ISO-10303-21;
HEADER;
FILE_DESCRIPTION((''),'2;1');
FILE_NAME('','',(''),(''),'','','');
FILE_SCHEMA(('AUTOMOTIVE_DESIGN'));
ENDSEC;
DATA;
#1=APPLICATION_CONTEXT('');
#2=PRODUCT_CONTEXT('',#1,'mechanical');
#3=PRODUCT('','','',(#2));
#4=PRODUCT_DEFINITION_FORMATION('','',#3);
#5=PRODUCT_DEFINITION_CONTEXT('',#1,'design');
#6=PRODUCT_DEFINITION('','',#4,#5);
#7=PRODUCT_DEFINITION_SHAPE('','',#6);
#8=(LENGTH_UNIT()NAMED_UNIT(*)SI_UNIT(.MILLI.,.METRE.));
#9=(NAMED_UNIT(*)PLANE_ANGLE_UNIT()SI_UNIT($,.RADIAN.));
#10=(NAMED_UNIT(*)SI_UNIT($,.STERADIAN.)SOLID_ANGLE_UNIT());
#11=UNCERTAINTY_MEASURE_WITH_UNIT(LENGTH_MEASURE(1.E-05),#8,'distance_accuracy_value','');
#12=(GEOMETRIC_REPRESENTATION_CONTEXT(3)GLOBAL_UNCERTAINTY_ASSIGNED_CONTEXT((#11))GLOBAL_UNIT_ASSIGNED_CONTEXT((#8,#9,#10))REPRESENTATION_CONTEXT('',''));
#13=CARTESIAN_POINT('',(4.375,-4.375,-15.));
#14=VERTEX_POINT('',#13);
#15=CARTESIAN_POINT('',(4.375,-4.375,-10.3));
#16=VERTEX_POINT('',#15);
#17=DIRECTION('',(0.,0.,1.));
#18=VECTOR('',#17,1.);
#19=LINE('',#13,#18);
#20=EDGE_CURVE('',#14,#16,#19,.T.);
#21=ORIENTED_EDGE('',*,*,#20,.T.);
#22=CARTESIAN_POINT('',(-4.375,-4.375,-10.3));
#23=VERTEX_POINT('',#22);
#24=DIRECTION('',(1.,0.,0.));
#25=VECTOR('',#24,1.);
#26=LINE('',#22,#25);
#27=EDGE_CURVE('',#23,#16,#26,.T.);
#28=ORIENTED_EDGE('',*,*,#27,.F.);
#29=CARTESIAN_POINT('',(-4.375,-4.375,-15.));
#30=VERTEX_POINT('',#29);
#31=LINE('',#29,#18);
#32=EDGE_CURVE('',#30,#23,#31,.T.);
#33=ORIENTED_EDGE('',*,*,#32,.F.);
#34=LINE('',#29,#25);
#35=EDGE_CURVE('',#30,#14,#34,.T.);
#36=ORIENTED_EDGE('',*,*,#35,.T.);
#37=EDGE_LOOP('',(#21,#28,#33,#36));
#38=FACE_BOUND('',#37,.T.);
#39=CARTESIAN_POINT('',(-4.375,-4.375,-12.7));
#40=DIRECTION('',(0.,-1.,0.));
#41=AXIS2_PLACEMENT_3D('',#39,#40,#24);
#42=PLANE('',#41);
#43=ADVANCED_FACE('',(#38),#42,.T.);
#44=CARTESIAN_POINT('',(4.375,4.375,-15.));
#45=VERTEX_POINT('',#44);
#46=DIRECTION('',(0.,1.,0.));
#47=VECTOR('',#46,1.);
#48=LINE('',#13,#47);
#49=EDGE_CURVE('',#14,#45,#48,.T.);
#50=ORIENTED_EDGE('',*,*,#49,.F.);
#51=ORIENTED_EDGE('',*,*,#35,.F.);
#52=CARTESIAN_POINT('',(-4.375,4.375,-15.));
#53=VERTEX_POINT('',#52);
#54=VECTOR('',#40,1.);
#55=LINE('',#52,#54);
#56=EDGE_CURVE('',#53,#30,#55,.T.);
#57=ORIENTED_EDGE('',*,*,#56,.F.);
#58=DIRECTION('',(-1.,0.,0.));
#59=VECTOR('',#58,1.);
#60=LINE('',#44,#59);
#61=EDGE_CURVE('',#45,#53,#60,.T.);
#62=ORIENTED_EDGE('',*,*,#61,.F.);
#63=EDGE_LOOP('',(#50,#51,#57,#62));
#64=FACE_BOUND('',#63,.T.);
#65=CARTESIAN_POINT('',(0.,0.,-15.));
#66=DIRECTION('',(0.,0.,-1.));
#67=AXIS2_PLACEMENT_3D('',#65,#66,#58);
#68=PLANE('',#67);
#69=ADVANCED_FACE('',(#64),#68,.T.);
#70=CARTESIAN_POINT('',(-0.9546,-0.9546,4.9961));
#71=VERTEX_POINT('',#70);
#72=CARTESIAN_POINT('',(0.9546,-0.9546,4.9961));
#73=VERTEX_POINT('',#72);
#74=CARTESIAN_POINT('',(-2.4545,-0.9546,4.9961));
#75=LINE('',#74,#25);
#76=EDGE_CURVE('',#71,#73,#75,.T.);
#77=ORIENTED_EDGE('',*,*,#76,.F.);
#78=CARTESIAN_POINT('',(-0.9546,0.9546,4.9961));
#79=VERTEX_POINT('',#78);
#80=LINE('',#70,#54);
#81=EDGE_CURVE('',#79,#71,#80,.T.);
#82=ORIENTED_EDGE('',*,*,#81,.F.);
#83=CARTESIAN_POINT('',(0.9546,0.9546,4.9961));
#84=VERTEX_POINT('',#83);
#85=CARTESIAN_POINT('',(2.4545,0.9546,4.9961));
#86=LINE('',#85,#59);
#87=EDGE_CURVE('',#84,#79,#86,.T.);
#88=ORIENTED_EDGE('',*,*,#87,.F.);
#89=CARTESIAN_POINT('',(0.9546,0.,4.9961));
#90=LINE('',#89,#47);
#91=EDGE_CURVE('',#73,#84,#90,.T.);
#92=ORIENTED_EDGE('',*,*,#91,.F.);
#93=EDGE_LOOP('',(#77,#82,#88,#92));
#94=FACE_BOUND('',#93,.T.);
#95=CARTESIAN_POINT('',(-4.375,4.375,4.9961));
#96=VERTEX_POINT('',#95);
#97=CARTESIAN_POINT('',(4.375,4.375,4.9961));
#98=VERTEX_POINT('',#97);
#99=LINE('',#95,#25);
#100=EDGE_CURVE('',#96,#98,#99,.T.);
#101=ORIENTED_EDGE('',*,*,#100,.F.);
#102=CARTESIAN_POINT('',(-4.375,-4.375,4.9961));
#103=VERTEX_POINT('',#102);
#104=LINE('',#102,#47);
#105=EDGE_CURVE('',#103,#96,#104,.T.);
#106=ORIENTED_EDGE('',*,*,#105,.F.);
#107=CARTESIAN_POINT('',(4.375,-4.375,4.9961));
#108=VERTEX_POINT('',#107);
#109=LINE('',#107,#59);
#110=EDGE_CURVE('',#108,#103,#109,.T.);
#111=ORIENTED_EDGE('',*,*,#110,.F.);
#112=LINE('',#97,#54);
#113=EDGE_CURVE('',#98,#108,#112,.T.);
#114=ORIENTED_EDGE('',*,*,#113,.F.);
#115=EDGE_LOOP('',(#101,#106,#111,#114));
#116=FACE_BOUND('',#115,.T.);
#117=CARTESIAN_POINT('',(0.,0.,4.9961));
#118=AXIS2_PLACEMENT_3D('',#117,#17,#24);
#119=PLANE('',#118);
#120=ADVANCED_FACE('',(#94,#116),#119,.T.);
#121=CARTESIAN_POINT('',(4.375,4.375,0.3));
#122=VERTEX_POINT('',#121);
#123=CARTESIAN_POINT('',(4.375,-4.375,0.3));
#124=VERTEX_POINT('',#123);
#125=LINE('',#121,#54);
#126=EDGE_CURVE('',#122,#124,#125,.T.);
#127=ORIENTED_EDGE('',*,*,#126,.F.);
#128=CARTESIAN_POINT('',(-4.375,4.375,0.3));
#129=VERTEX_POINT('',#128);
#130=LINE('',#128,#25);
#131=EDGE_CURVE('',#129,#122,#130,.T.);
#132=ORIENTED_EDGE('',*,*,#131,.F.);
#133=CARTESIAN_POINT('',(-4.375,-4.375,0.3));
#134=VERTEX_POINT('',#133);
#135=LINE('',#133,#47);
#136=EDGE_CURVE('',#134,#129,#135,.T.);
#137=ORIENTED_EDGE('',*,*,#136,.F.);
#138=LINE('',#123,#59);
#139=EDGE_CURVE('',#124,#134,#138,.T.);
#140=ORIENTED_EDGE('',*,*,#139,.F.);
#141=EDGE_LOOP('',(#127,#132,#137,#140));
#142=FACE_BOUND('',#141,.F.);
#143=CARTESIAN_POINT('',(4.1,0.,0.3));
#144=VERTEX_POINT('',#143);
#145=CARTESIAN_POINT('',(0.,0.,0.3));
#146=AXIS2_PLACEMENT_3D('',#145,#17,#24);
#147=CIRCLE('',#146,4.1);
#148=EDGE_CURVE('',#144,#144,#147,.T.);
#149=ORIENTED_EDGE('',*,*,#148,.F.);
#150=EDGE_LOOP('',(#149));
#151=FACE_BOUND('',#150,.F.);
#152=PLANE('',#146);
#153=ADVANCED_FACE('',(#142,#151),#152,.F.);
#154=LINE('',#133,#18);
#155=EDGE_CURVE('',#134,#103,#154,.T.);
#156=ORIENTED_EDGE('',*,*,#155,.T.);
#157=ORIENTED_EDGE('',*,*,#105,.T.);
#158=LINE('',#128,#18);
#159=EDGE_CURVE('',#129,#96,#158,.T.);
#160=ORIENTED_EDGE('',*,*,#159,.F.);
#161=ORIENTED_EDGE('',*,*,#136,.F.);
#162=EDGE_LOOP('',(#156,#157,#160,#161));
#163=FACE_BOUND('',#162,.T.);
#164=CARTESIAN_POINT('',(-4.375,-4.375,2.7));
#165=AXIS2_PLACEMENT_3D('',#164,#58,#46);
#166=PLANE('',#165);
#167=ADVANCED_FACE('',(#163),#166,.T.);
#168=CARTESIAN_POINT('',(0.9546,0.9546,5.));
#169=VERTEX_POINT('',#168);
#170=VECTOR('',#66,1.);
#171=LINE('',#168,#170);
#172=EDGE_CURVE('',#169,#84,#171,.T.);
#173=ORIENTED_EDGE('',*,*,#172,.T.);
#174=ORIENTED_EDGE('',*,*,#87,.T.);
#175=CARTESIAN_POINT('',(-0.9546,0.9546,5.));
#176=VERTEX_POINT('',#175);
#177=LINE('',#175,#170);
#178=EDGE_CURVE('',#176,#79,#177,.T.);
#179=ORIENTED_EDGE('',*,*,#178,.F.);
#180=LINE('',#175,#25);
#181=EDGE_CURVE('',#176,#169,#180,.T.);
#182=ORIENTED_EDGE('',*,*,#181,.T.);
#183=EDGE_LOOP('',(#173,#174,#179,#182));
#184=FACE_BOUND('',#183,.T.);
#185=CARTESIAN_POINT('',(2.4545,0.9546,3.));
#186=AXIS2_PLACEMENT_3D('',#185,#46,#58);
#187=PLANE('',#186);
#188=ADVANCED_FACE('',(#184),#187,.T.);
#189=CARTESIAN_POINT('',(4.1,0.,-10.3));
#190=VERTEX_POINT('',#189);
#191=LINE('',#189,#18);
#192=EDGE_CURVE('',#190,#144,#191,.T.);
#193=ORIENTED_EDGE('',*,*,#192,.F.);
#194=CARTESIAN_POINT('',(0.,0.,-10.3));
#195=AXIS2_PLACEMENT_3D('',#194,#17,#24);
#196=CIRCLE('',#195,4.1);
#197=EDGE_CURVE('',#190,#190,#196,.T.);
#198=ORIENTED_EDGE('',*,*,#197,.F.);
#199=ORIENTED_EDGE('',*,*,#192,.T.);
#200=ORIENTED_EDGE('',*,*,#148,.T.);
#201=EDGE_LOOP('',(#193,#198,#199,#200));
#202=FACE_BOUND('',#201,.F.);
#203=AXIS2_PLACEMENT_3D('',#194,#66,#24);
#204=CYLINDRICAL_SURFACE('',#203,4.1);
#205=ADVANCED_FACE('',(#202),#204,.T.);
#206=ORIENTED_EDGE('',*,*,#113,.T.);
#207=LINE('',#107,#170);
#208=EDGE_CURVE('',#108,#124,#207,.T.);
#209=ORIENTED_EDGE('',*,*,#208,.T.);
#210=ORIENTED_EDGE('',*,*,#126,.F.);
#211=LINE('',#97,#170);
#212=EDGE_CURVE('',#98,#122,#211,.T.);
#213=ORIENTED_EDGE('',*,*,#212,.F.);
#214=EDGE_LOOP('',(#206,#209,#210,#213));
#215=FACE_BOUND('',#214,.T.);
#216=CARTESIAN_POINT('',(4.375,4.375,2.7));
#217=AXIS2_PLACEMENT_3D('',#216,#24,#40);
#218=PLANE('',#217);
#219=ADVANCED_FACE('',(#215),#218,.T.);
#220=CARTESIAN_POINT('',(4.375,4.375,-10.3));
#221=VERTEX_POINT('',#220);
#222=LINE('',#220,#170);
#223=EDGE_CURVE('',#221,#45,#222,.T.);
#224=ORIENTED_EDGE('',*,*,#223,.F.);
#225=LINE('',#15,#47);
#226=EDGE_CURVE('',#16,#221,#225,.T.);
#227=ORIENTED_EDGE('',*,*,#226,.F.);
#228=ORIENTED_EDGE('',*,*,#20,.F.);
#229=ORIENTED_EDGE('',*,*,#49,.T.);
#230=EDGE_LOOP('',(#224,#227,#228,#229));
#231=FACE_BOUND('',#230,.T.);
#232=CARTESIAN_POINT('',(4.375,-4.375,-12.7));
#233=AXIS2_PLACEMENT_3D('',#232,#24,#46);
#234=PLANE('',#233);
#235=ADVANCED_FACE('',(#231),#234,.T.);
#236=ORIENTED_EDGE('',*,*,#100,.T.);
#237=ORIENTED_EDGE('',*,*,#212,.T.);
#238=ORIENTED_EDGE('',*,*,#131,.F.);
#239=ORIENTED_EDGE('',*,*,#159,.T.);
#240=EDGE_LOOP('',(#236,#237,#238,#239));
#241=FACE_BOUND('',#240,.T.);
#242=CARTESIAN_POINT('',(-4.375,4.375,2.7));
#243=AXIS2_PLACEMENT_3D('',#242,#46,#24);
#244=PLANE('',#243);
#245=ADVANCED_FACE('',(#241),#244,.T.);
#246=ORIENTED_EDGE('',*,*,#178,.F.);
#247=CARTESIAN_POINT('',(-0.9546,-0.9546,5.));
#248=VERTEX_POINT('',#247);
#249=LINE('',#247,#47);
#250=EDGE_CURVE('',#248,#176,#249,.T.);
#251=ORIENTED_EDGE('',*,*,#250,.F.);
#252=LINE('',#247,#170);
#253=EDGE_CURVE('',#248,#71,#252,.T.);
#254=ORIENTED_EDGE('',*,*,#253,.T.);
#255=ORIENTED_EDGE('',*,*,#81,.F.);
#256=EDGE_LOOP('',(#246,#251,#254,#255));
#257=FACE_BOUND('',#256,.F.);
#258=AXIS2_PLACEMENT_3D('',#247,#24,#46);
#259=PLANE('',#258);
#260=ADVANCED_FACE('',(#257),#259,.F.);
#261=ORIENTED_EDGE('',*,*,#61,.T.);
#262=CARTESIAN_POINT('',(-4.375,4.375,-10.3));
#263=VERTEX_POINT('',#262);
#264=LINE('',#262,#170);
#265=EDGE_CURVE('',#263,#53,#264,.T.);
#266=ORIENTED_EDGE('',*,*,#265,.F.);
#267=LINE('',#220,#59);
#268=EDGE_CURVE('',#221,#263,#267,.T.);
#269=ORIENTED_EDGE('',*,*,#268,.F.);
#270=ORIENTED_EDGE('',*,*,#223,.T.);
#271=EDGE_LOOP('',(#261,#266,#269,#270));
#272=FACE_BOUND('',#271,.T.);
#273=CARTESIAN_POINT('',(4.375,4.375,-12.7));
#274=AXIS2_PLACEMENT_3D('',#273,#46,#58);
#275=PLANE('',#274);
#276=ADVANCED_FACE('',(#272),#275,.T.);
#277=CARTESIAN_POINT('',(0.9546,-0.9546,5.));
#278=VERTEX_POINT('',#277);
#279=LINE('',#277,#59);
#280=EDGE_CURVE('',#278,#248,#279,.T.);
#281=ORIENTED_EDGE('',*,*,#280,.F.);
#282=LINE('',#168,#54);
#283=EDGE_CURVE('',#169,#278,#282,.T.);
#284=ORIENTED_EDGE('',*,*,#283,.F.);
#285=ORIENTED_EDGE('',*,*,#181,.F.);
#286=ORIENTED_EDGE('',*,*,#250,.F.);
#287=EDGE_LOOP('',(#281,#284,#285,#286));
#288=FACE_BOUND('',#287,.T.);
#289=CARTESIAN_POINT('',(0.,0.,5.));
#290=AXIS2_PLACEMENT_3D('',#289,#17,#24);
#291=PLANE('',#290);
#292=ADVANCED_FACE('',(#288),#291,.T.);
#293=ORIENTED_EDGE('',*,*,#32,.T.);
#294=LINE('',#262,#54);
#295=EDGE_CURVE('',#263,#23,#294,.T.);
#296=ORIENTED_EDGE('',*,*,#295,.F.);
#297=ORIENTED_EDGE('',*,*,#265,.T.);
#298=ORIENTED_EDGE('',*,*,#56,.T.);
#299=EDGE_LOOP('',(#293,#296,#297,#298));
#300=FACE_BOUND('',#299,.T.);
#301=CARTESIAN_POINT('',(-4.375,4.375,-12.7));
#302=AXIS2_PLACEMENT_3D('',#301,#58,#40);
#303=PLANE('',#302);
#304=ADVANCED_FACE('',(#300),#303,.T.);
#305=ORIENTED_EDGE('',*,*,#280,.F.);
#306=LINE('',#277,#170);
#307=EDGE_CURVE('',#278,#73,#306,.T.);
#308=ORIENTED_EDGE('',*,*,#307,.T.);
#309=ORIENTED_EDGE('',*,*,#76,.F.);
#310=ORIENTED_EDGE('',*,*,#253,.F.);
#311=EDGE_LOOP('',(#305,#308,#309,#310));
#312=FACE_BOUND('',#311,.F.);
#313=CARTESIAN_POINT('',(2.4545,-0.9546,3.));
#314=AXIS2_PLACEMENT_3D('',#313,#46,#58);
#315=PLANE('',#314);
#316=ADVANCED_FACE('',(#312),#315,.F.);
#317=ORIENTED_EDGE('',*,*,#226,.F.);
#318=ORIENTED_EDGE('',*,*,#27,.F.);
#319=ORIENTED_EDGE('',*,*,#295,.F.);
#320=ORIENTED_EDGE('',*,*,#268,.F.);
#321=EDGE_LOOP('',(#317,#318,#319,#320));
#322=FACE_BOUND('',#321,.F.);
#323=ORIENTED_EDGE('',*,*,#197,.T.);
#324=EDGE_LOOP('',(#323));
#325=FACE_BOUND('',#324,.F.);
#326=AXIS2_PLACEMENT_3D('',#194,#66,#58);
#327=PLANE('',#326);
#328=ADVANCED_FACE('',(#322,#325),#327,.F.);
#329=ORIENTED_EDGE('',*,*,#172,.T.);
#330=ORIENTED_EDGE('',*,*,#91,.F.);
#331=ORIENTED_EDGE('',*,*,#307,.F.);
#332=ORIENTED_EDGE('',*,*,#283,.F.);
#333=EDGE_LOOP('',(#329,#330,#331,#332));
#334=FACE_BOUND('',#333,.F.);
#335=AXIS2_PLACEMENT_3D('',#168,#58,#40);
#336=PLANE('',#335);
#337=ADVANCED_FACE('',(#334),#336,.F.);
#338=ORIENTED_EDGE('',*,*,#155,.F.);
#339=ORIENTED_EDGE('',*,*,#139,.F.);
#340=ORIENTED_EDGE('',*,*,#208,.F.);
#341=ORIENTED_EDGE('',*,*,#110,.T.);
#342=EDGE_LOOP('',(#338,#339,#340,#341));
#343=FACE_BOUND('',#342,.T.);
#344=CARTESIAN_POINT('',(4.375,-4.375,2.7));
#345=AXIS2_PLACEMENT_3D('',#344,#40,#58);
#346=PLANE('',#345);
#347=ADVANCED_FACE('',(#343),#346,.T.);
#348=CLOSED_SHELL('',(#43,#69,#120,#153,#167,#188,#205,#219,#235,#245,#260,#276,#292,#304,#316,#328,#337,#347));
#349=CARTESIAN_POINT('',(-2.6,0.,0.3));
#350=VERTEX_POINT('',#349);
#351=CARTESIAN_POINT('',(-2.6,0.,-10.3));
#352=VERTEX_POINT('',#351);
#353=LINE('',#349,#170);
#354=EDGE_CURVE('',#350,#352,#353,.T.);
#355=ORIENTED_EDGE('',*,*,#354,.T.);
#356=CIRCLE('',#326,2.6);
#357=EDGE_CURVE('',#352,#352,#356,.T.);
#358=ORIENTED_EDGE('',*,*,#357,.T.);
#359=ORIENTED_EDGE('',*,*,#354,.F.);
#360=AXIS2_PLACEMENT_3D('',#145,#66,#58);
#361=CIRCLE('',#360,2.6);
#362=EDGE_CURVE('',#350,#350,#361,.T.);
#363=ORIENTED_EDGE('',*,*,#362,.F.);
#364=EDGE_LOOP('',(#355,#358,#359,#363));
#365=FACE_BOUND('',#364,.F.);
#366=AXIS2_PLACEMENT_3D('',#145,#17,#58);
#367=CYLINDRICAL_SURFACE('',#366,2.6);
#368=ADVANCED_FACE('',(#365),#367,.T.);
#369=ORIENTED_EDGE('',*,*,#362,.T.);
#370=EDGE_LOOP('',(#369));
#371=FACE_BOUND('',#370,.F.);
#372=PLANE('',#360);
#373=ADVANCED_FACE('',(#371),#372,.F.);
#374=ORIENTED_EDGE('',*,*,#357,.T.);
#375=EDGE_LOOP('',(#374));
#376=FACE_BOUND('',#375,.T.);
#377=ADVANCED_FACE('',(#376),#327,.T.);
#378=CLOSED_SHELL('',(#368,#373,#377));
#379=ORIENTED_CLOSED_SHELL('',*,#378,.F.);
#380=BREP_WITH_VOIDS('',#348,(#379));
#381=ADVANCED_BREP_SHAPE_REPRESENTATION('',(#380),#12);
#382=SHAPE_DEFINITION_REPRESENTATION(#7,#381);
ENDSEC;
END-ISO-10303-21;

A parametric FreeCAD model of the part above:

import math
import FreeCAD as App
import Part
import Sketcher

V = App.Vector


def add_polygon(sketch, points):
    """Adds a closed chain of lines whose ends are joined by coincident constraints."""
    first, n = sketch.GeometryCount, len(points)
    for a, b in zip(points, points[1:] + points[:1]):
        sketch.addGeometry(Part.LineSegment(App.Vector(*a, 0), App.Vector(*b, 0)), False)
    for i in range(n):
        sketch.addConstraint(Sketcher.Constraint("Coincident", first + i, 2, first + (i + 1) % n, 1))

doc = App.newDocument("Part")
params = doc.addObject("Spreadsheet::Sheet", "Params")
for row, (alias, value) in enumerate([
    ("sketch1_diameter", "2.7 mm"),
    ("pad1_length", "5 mm"),
    ("pad1_length2", "15 mm"),
    ("sketch2_radius", "1.35 mm"),
    ("pocket1_length", "2 mm"),
    ("sketch3_diameter", "2.7 mm"),
    ("pad2_length", "2.7 mm"),
    ("sketch4_radius", "1.35 mm"),
    ("pocket2_length", "2 mm"),
    ("pad3_length", "2.7 mm"),
    ("sketch6_height", "2 mm"),
    ("pad4_length", "1.9092 mm"),
    ("sketch7_diameter", "2.7 mm"),
    ("sketch7_diameter2", "6.75 mm"),
    ("pad5_length", "10.6 mm"),
    ("sketch8_diameter", "8.75 mm"),
    ("pad6_length", "2.7 mm"),
    ("sketch9_diameter", "8.75 mm"),
    ("pad7_length", "2.7 mm"),
    ("sketch10_diameter", "8.75 mm"),
    ("pocket3_length", "0.3 mm"),
    ("sketch11_diameter", "8.75 mm"),
    ("pocket4_length", "0.3 mm"),
    ("sketch12_diameter", "8.2 mm"),
    ("sketch12_diameter2", "6.75 mm"),
    ("pad8_length", "10.6 mm"),
    ("pad9_length", "2.4 mm"),
    ("pad10_length", "2.4 mm"),
    ("sketch15_width", "8.75 mm"),
    ("pad11_length", "2.2961 mm"),
    ("sketch16_width", "8.75 mm"),
    ("pad12_length", "2.3 mm"),
    ("sketch17_diameter", "5.2 mm"),
    ("pocket5_length", "10.6 mm"),
], start=1):
    params.set(f"A{row}", alias)
    params.set(f"B{row}", "=" + value)
    params.setAlias(f"B{row}", alias)

body = doc.addObject("PartDesign::Body", "Body")

# Sketch on XY plane
sketch1 = body.newObject("Sketcher::SketchObject", "Sketch")
sketch1.AttachmentSupport = (doc.getObject("XY_Plane"), [""])
sketch1.MapMode = "FlatFace"
sketch1.addGeometry(Part.Circle(V(0, 0, 0), V(0, 0, 1), 1.35), False)
sketch1.addConstraint([
    Sketcher.Constraint("Coincident", 0, 3, -1, 1),
    Sketcher.Constraint("Diameter", 0, 2.7),
])
sketch1.setExpression("Constraints[1]", "Params.sketch1_diameter")
pad1 = body.newObject("PartDesign::Pad", "Pad")
pad1.Profile = sketch1
pad1.Type = "TwoLengths"
pad1.setExpression("Length", "Params.pad1_length")
pad1.setExpression("Length2", "Params.pad1_length2")

# Sketch on XY plane
sketch2 = body.newObject("Sketcher::SketchObject", "Sketch001")
sketch2.AttachmentSupport = (doc.getObject("XY_Plane"), [""])
sketch2.MapMode = "FlatFace"
sketch2.AttachmentOffset = App.Placement(V(0, 0, 5), App.Rotation())
sketch2.addGeometry([
    Part.ArcOfCircle(Part.Circle(V(0, 0, 0), V(0, 0, 1), 1.35), math.radians(-45), math.radians(45)),  # 0
    Part.LineSegment(V(0.9546, -0.9546, 0), V(0.9546, 0.9546, 0)),  # 1
    Part.LineSegment(V(-0.9546, 0.9546, 0), V(0.9546, 0.9546, 0)),  # 2
    Part.ArcOfCircle(Part.Circle(V(0, 0, 0), V(0, 0, 1), 1.35), math.radians(45), math.radians(135)),  # 3
    Part.ArcOfCircle(Part.Circle(V(0, 0, 0), V(0, 0, 1), 1.35), math.radians(-135), math.radians(-45)),  # 4
    Part.LineSegment(V(-0.9546, -0.9546, 0), V(0.9546, -0.9546, 0)),  # 5
    Part.LineSegment(V(-0.9546, -0.9546, 0), V(-0.9546, 0.9546, 0)),  # 6
    Part.ArcOfCircle(Part.Circle(V(0, 0, 0), V(0, 0, 1), 1.35), math.radians(135), math.radians(225)),  # 7
], False)
sketch2.addConstraint([
    Sketcher.Constraint("Coincident", 0, 1, 1, 1),
    Sketcher.Constraint("Coincident", 1, 2, 0, 2),
    Sketcher.Constraint("Coincident", 2, 1, 3, 2),
    Sketcher.Constraint("Coincident", 3, 1, 2, 2),
    Sketcher.Constraint("Coincident", 4, 1, 5, 1),
    Sketcher.Constraint("Coincident", 5, 2, 4, 2),
    Sketcher.Constraint("Coincident", 6, 1, 7, 2),
    Sketcher.Constraint("Coincident", 7, 1, 6, 2),
    Sketcher.Constraint("Vertical", 1),
    Sketcher.Constraint("Horizontal", 2),
    Sketcher.Constraint("Horizontal", 5),
    Sketcher.Constraint("Vertical", 6),
    Sketcher.Constraint("Coincident", 0, 3, -1, 1),
    Sketcher.Constraint("Coincident", 3, 3, -1, 1),
    Sketcher.Constraint("Coincident", 4, 3, -1, 1),
    Sketcher.Constraint("Coincident", 7, 3, -1, 1),
    Sketcher.Constraint("Coincident", 3, 1, 1, 2),
    Sketcher.Constraint("Coincident", 5, 2, 0, 1),
    Sketcher.Constraint("Coincident", 6, 1, 4, 1),
    Sketcher.Constraint("Equal", 5, 1),
    Sketcher.Constraint("Radius", 0, 1.35),
])
sketch2.setExpression("Constraints[20]", "Params.sketch2_radius")
pocket1 = body.newObject("PartDesign::Pocket", "Pocket")
pocket1.Profile = sketch2
pocket1.setExpression("Length", "Params.pocket1_length")

# Sketch on XY plane
sketch3 = body.newObject("Sketcher::SketchObject", "Sketch002")
sketch3.AttachmentSupport = (doc.getObject("XY_Plane"), [""])
sketch3.MapMode = "FlatFace"
sketch3.AttachmentOffset = App.Placement(V(0, 0, 3), App.Rotation())
sketch3.addGeometry([
    Part.Circle(V(0, 0, 0), V(0, 0, 1), 1.9092),
    Part.Circle(V(0, 0, 0), V(0, 0, 1), 1.350008),
], False)
sketch3.addConstraint([
    Sketcher.Constraint("Coincident", 0, 3, -1, 1),
    Sketcher.Constraint("Coincident", 1, 3, -1, 1),
    Sketcher.Constraint("Diameter", 1, 2.7),
    Sketcher.Constraint("Diameter", 0, 3.8184),
])
sketch3.setExpression("Constraints[2]", "Params.sketch3_diameter")
pad2 = body.newObject("PartDesign::Pad", "Pad001")
pad2.Profile = sketch3
pad2.setExpression("Length", "Params.pad2_length")
pad2.Reversed = True

# Sketch on XY plane
sketch4 = body.newObject("Sketcher::SketchObject", "Sketch003")
sketch4.AttachmentSupport = (doc.getObject("XY_Plane"), [""])
sketch4.MapMode = "FlatFace"
sketch4.AttachmentOffset = App.Placement(V(0, 0, -15), App.Rotation())
sketch4.addGeometry([
    Part.ArcOfCircle(Part.Circle(V(0, 0, 0), V(0, 0, 1), 1.35), math.radians(135), math.radians(225)),  # 0
    Part.LineSegment(V(-0.9546, -0.9546, 0), V(-0.9546, 0.9546, 0)),  # 1
    Part.LineSegment(V(0.9546, 0.9546, 0), V(-0.9546, 0.9546, 0)),  # 2
    Part.ArcOfCircle(Part.Circle(V(0, 0, 0), V(0, 0, 1), 1.35), math.radians(45), math.radians(135)),  # 3
    Part.ArcOfCircle(Part.Circle(V(0, 0, 0), V(0, 0, 1), 1.35), math.radians(-135), math.radians(-45)),  # 4
    Part.LineSegment(V(0.9546, -0.9546, 0), V(-0.9546, -0.9546, 0)),  # 5
    Part.LineSegment(V(0.9546, -0.9546, 0), V(0.9546, 0.9546, 0)),  # 6
    Part.ArcOfCircle(Part.Circle(V(0, 0, 0), V(0, 0, 1), 1.35), math.radians(-45), math.radians(45)),  # 7
], False)
sketch4.addConstraint([
    Sketcher.Constraint("Coincident", 0, 1, 1, 2),
    Sketcher.Constraint("Coincident", 1, 1, 0, 2),
    Sketcher.Constraint("Coincident", 2, 1, 3, 1),
    Sketcher.Constraint("Coincident", 3, 2, 2, 2),
    Sketcher.Constraint("Coincident", 4, 1, 5, 2),
    Sketcher.Constraint("Coincident", 5, 1, 4, 2),
    Sketcher.Constraint("Coincident", 6, 1, 7, 1),
    Sketcher.Constraint("Coincident", 7, 2, 6, 2),
    Sketcher.Constraint("Vertical", 1),
    Sketcher.Constraint("Horizontal", 2),
    Sketcher.Constraint("Horizontal", 5),
    Sketcher.Constraint("Vertical", 6),
    Sketcher.Constraint("Coincident", 0, 3, -1, 1),
    Sketcher.Constraint("Coincident", 3, 3, -1, 1),
    Sketcher.Constraint("Coincident", 4, 3, -1, 1),
    Sketcher.Constraint("Coincident", 7, 3, -1, 1),
    Sketcher.Constraint("Coincident", 3, 2, 0, 1),
    Sketcher.Constraint("Coincident", 4, 1, 1, 1),
    Sketcher.Constraint("Coincident", 6, 1, 5, 1),
    Sketcher.Constraint("Equal", 5, 1),
    Sketcher.Constraint("Radius", 0, 1.35),
])
sketch4.setExpression("Constraints[20]", "Params.sketch4_radius")
pocket2 = body.newObject("PartDesign::Pocket", "Pocket001")
pocket2.Profile = sketch4
pocket2.setExpression("Length", "Params.pocket2_length")
pocket2.Reversed = True

# Sketch on XY plane
sketch5 = body.newObject("Sketcher::SketchObject", "Sketch004")
sketch5.AttachmentSupport = (doc.getObject("XY_Plane"), [""])
sketch5.MapMode = "FlatFace"
sketch5.AttachmentOffset = App.Placement(V(0, 0, -13), App.Rotation())
sketch5.addGeometry(Part.Circle(V(0, 0, 0), V(0, 0, 1), 1.9092), False)
sketch5.addConstraint([
    Sketcher.Constraint("Coincident", 0, 3, -1, 1),
    Sketcher.Constraint("Diameter", 0, 3.8184),
])
pad3 = body.newObject("PartDesign::Pad", "Pad002")
pad3.Profile = sketch5
pad3.setExpression("Length", "Params.pad3_length")

# Sketch on XZ plane
sketch6 = body.newObject("Sketcher::SketchObject", "Sketch005")
sketch6.AttachmentSupport = (doc.getObject("XZ_Plane"), [""])
sketch6.MapMode = "FlatFace"
sketch6.AttachmentOffset = App.Placement(V(0, 0, 0.9546), App.Rotation())
add_polygon(sketch6, [(-2.4545, 2.9961), (2.4545, 2.9961), (2.4545, 4.9961), (-2.4545, 4.9961)])  # lines 0-3
add_polygon(sketch6, [(-2.4545, -13), (-2.4545, -15), (2.4545, -15), (2.4545, -13)])  # lines 4-7
sketch6.addConstraint([
    Sketcher.Constraint("Horizontal", 0),
    Sketcher.Constraint("Vertical", 1),
    Sketcher.Constraint("Horizontal", 2),
    Sketcher.Constraint("Vertical", 3),
    Sketcher.Constraint("Vertical", 4),
    Sketcher.Constraint("Horizontal", 5),
    Sketcher.Constraint("Vertical", 6),
    Sketcher.Constraint("Horizontal", 7),
    Sketcher.Constraint("Vertical", 3, 2, 4, 2),
    Sketcher.Constraint("Vertical", 1, 2, 5, 2),
    Sketcher.Constraint("Equal", 3, 4),
    Sketcher.Constraint("DistanceY", 1, 1, 1, 2, 2.0),
    Sketcher.Constraint("DistanceX", 0, 1, 0, 2, 4.909),
    Sketcher.Constraint("DistanceY", 4, 2, -1, 1, 15.0),
    Sketcher.Constraint("DistanceY", -1, 1, 0, 2, 2.996),
    Sketcher.Constraint("DistanceX", -1, 1, 0, 2, 2.4545),
])
sketch6.setExpression("Constraints[19]", "Params.sketch6_height")
pad4 = body.newObject("PartDesign::Pad", "Pad003")
pad4.Profile = sketch6
pad4.setExpression("Length", "Params.pad4_length")
pad4.Reversed = True

# Sketch on XY plane
sketch7 = body.newObject("Sketcher::SketchObject", "Sketch006")
sketch7.AttachmentSupport = (doc.getObject("XY_Plane"), [""])
sketch7.MapMode = "FlatFace"
sketch7.AttachmentOffset = App.Placement(V(0, 0, -10.3), App.Rotation())
sketch7.addGeometry([
    Part.Circle(V(0, 0, 0), V(0, 0, 1), 3.375),
    Part.Circle(V(0, 0, 0), V(0, 0, 1), 1.35),
], False)
sketch7.addConstraint([
    Sketcher.Constraint("Coincident", 0, 3, -1, 1),
    Sketcher.Constraint("Coincident", 1, 3, -1, 1),
    Sketcher.Constraint("Diameter", 1, 2.7),
    Sketcher.Constraint("Diameter", 0, 6.75),
])
sketch7.setExpression("Constraints[2]", "Params.sketch7_diameter")
sketch7.setExpression("Constraints[3]", "Params.sketch7_diameter2")
pad5 = body.newObject("PartDesign::Pad", "Pad004")
pad5.Profile = sketch7
pad5.setExpression("Length", "Params.pad5_length")

# Sketch on XY plane
sketch8 = body.newObject("Sketcher::SketchObject", "Sketch007")
sketch8.AttachmentSupport = (doc.getObject("XY_Plane"), [""])
sketch8.MapMode = "FlatFace"
sketch8.AttachmentOffset = App.Placement(V(0, 0, -10.3), App.Rotation())
sketch8.addGeometry([
    Part.Circle(V(0, 0, 0), V(0, 0, 1), 4.375),
    Part.Circle(V(0, 0, 0), V(0, 0, 1), 1.9092),
], False)
sketch8.addConstraint([
    Sketcher.Constraint("Coincident", 0, 3, -1, 1),
    Sketcher.Constraint("Coincident", 1, 3, -1, 1),
    Sketcher.Constraint("Diameter", 0, 8.75),
    Sketcher.Constraint("Diameter", 1, 3.8184),
])
sketch8.setExpression("Constraints[2]", "Params.sketch8_diameter")
pad6 = body.newObject("PartDesign::Pad", "Pad005")
pad6.Profile = sketch8
pad6.setExpression("Length", "Params.pad6_length")
pad6.Reversed = True

# Sketch on XY plane
sketch9 = body.newObject("Sketcher::SketchObject", "Sketch008")
sketch9.AttachmentSupport = (doc.getObject("XY_Plane"), [""])
sketch9.MapMode = "FlatFace"
sketch9.AttachmentOffset = App.Placement(V(0, 0, 0.3), App.Rotation())
sketch9.addGeometry([
    Part.Circle(V(0, 0, 0), V(0, 0, 1), 4.375),
    Part.Circle(V(0, 0, 0), V(0, 0, 1), 1.9092),
], False)
sketch9.addConstraint([
    Sketcher.Constraint("Coincident", 0, 3, -1, 1),
    Sketcher.Constraint("Coincident", 1, 3, -1, 1),
    Sketcher.Constraint("Diameter", 0, 8.75),
    Sketcher.Constraint("Diameter", 1, 3.8184),
])
sketch9.setExpression("Constraints[2]", "Params.sketch9_diameter")
pad7 = body.newObject("PartDesign::Pad", "Pad006")
pad7.Profile = sketch9
pad7.setExpression("Length", "Params.pad7_length")

# Sketch on XY plane
sketch10 = body.newObject("Sketcher::SketchObject", "Sketch009")
sketch10.AttachmentSupport = (doc.getObject("XY_Plane"), [""])
sketch10.MapMode = "FlatFace"
sketch10.AttachmentOffset = App.Placement(V(0, 0, 3), App.Rotation())
sketch10.addGeometry(Part.Circle(V(0, 0, 0), V(0, 0, 1), 4.375), False)  # 0
add_polygon(sketch10, [(2.4545, 0.9546), (2.4545, -0.9546), (-2.4545, -0.9546), (-2.4545, 0.9546)])  # lines 1-4
sketch10.addConstraint([
    Sketcher.Constraint("Vertical", 1),
    Sketcher.Constraint("Horizontal", 2),
    Sketcher.Constraint("Vertical", 3),
    Sketcher.Constraint("Horizontal", 4),
    Sketcher.Constraint("Coincident", 0, 3, -1, 1),
    Sketcher.Constraint("Symmetric", 1, 2, 3, 2, -1, 1),
    Sketcher.Constraint("Diameter", 0, 8.75),
    Sketcher.Constraint("DistanceX", 2, 2, 2, 1, 4.909),
    Sketcher.Constraint("DistanceY", 1, 2, 1, 1, 1.9092),
])
sketch10.setExpression("Constraints[10]", "Params.sketch10_diameter")
pocket3 = body.newObject("PartDesign::Pocket", "Pocket002")
pocket3.Profile = sketch10
pocket3.setExpression("Length", "Params.pocket3_length")

# Sketch on XY plane
sketch11 = body.newObject("Sketcher::SketchObject", "Sketch010")
sketch11.AttachmentSupport = (doc.getObject("XY_Plane"), [""])
sketch11.MapMode = "FlatFace"
sketch11.AttachmentOffset = App.Placement(V(0, 0, -13), App.Rotation())
sketch11.addGeometry(Part.Circle(V(0, 0, 0), V(0, 0, 1), 4.375), False)  # 0
add_polygon(sketch11, [(2.4545, -0.9546), (2.4545, 0.9546), (-2.4545, 0.9546), (-2.4545, -0.9546)])  # lines 1-4
sketch11.addConstraint([
    Sketcher.Constraint("Vertical", 1),
    Sketcher.Constraint("Horizontal", 2),
    Sketcher.Constraint("Vertical", 3),
    Sketcher.Constraint("Horizontal", 4),
    Sketcher.Constraint("Coincident", 0, 3, -1, 1),
    Sketcher.Constraint("Symmetric", 1, 2, 3, 2, -1, 1),
    Sketcher.Constraint("Diameter", 0, 8.75),
    Sketcher.Constraint("DistanceX", 2, 2, 2, 1, 4.909),
    Sketcher.Constraint("DistanceY", 1, 1, 1, 2, 1.9092),
])
sketch11.setExpression("Constraints[10]", "Params.sketch11_diameter")
pocket4 = body.newObject("PartDesign::Pocket", "Pocket003")
pocket4.Profile = sketch11
pocket4.setExpression("Length", "Params.pocket4_length")
pocket4.Reversed = True

# Sketch on XY plane
sketch12 = body.newObject("Sketcher::SketchObject", "Sketch011")
sketch12.AttachmentSupport = (doc.getObject("XY_Plane"), [""])
sketch12.MapMode = "FlatFace"
sketch12.AttachmentOffset = App.Placement(V(0, 0, -10.3), App.Rotation())
sketch12.addGeometry([
    Part.Circle(V(0, 0, 0), V(0, 0, 1), 4.1),
    Part.Circle(V(0, 0, 0), V(0, 0, 1), 3.375),
], False)
sketch12.addConstraint([
    Sketcher.Constraint("Coincident", 0, 3, -1, 1),
    Sketcher.Constraint("Coincident", 1, 3, -1, 1),
    Sketcher.Constraint("Diameter", 0, 8.2),
    Sketcher.Constraint("Diameter", 1, 6.75),
])
sketch12.setExpression("Constraints[2]", "Params.sketch12_diameter")
sketch12.setExpression("Constraints[3]", "Params.sketch12_diameter2")
pad8 = body.newObject("PartDesign::Pad", "Pad007")
pad8.Profile = sketch12
pad8.setExpression("Length", "Params.pad8_length")

# Sketch on XY plane
sketch13 = body.newObject("Sketcher::SketchObject", "Sketch012")
sketch13.AttachmentSupport = (doc.getObject("XY_Plane"), [""])
sketch13.MapMode = "FlatFace"
sketch13.AttachmentOffset = App.Placement(V(0, 0, -12.7), App.Rotation())
sketch13.addGeometry([
    Part.LineSegment(V(-4.375, -4.375, 0), V(-4.375, 0, 0)),  # 0
    Part.ArcOfCircle(Part.Circle(V(0, 0, 0), V(0, 0, 1), 4.375), math.radians(180), math.radians(270)),  # 1
    Part.LineSegment(V(0, -4.375, 0), V(-4.375, -4.375, 0)),  # 2
    Part.ArcOfCircle(Part.Circle(V(0, 0, 0), V(0, 0, 1), 4.375), math.radians(90), math.radians(180)),  # 3
    Part.LineSegment(V(-4.375, 0, 0), V(-4.375, 4.375, 0)),  # 4
    Part.LineSegment(V(-4.375, 4.375, 0), V(0, 4.375, 0)),  # 5
    Part.ArcOfCircle(Part.Circle(V(0, 0, 0), V(0, 0, 1), 4.375), math.radians(0), math.radians(90)),  # 6
    Part.LineSegment(V(0, 4.375, 0), V(4.375, 4.375, 0)),  # 7
    Part.LineSegment(V(4.375, 4.375, 0), V(4.375, 0, 0)),  # 8
    Part.LineSegment(V(4.375, -4.375, 0), V(0, -4.375, 0)),  # 9
    Part.ArcOfCircle(Part.Circle(V(0, 0, 0), V(0, 0, 1), 4.375), math.radians(-90), math.radians(0)),  # 10
    Part.LineSegment(V(4.375, 0, 0), V(4.375, -4.375, 0)),  # 11
], False)
sketch13.addConstraint([
    Sketcher.Constraint("Tangent", 0, 2, 1, 1),
    Sketcher.Constraint("Tangent", 1, 2, 2, 1),
    Sketcher.Constraint("Coincident", 2, 2, 0, 1),
    Sketcher.Constraint("Tangent", 3, 2, 4, 1),
    Sketcher.Constraint("Coincident", 4, 2, 5, 1),
    Sketcher.Constraint("Tangent", 5, 2, 3, 1),
    Sketcher.Constraint("Tangent", 6, 2, 7, 1),
    Sketcher.Constraint("Coincident", 7, 2, 8, 1),
    Sketcher.Constraint("Tangent", 8, 2, 6, 1),
    Sketcher.Constraint("Tangent", 9, 2, 10, 1),
    Sketcher.Constraint("Tangent", 10, 2, 11, 1),
    Sketcher.Constraint("Coincident", 11, 2, 9, 1),
    Sketcher.Constraint("Vertical", 0),
    Sketcher.Constraint("Horizontal", 2),
    Sketcher.Constraint("Vertical", 4),
    Sketcher.Constraint("Horizontal", 5),
    Sketcher.Constraint("Horizontal", 7),
    Sketcher.Constraint("Vertical", 8),
    Sketcher.Constraint("Horizontal", 9),
    Sketcher.Constraint("Vertical", 11),
    Sketcher.Constraint("Coincident", 1, 3, -1, 1),
    Sketcher.Constraint("Coincident", 3, 3, -1, 1),
    Sketcher.Constraint("Coincident", 6, 3, -1, 1),
    Sketcher.Constraint("Coincident", 10, 3, -1, 1),
    Sketcher.Constraint("Equal", 1, 3),
    Sketcher.Constraint("Equal", 3, 6),
    Sketcher.Constraint("Equal", 6, 10),
    Sketcher.Constraint("Radius", 1, 4.375),
])
pad9 = body.newObject("PartDesign::Pad", "Pad008")
pad9.Profile = sketch13
pad9.setExpression("Length", "Params.pad9_length")

# Sketch on XY plane
sketch14 = body.newObject("Sketcher::SketchObject", "Sketch013")
sketch14.AttachmentSupport = (doc.getObject("XY_Plane"), [""])
sketch14.MapMode = "FlatFace"
sketch14.AttachmentOffset = App.Placement(V(0, 0, 2.7), App.Rotation())
sketch14.addGeometry([
    Part.LineSegment(V(4.375, -4.375, 0), V(4.375, 0, 0)),  # 0
    Part.ArcOfCircle(Part.Circle(V(0, 0, 0), V(0, 0, 1), 4.375), math.radians(-90), math.radians(0)),  # 1
    Part.LineSegment(V(0, -4.375, 0), V(4.375, -4.375, 0)),  # 2
    Part.ArcOfCircle(Part.Circle(V(0, 0, 0), V(0, 0, 1), 4.375), math.radians(0), math.radians(90)),  # 3
    Part.LineSegment(V(4.375, 0, 0), V(4.375, 4.375, 0)),  # 4
    Part.LineSegment(V(4.375, 4.375, 0), V(0, 4.375, 0)),  # 5
    Part.ArcOfCircle(Part.Circle(V(0, 0, 0), V(0, 0, 1), 4.375), math.radians(90), math.radians(180)),  # 6
    Part.LineSegment(V(0, 4.375, 0), V(-4.375, 4.375, 0)),  # 7
    Part.LineSegment(V(-4.375, 4.375, 0), V(-4.375, 0, 0)),  # 8
    Part.LineSegment(V(-4.375, -4.375, 0), V(0, -4.375, 0)),  # 9
    Part.ArcOfCircle(Part.Circle(V(0, 0, 0), V(0, 0, 1), 4.375), math.radians(180), math.radians(270)),  # 10
    Part.LineSegment(V(-4.375, 0, 0), V(-4.375, -4.375, 0)),  # 11
], False)
sketch14.addConstraint([
    Sketcher.Constraint("Tangent", 0, 2, 1, 2),
    Sketcher.Constraint("Tangent", 1, 1, 2, 1),
    Sketcher.Constraint("Coincident", 2, 2, 0, 1),
    Sketcher.Constraint("Tangent", 3, 1, 4, 1),
    Sketcher.Constraint("Coincident", 4, 2, 5, 1),
    Sketcher.Constraint("Tangent", 5, 2, 3, 2),
    Sketcher.Constraint("Tangent", 6, 1, 7, 1),
    Sketcher.Constraint("Coincident", 7, 2, 8, 1),
    Sketcher.Constraint("Tangent", 8, 2, 6, 2),
    Sketcher.Constraint("Tangent", 9, 2, 10, 2),
    Sketcher.Constraint("Tangent", 10, 1, 11, 1),
    Sketcher.Constraint("Coincident", 11, 2, 9, 1),
    Sketcher.Constraint("Vertical", 0),
    Sketcher.Constraint("Horizontal", 2),
    Sketcher.Constraint("Vertical", 4),
    Sketcher.Constraint("Horizontal", 5),
    Sketcher.Constraint("Horizontal", 7),
    Sketcher.Constraint("Vertical", 8),
    Sketcher.Constraint("Horizontal", 9),
    Sketcher.Constraint("Vertical", 11),
    Sketcher.Constraint("Coincident", 1, 3, -1, 1),
    Sketcher.Constraint("Coincident", 3, 3, -1, 1),
    Sketcher.Constraint("Coincident", 6, 3, -1, 1),
    Sketcher.Constraint("Coincident", 10, 3, -1, 1),
    Sketcher.Constraint("Equal", 1, 3),
    Sketcher.Constraint("Equal", 3, 6),
    Sketcher.Constraint("Equal", 6, 10),
    Sketcher.Constraint("Radius", 1, 4.375),
])
pad10 = body.newObject("PartDesign::Pad", "Pad009")
pad10.Profile = sketch14
pad10.setExpression("Length", "Params.pad10_length")
pad10.Reversed = True

# Sketch on XY plane
sketch15 = body.newObject("Sketcher::SketchObject", "Sketch014")
sketch15.AttachmentSupport = (doc.getObject("XY_Plane"), [""])
sketch15.MapMode = "FlatFace"
sketch15.AttachmentOffset = App.Placement(V(0, 0, 2.7), App.Rotation())
add_polygon(sketch15, [(4.375, 4.375), (-4.375, 4.375), (-4.375, -4.375), (4.375, -4.375)])  # lines 0-3
add_polygon(sketch15, [(2.4545, 0.9546), (2.4545, -0.9546), (-2.4545, -0.9546), (-2.4545, 0.9546)])  # lines 4-7
sketch15.addConstraint([
    Sketcher.Constraint("Horizontal", 0),
    Sketcher.Constraint("Vertical", 1),
    Sketcher.Constraint("Horizontal", 2),
    Sketcher.Constraint("Vertical", 3),
    Sketcher.Constraint("Vertical", 4),
    Sketcher.Constraint("Horizontal", 5),
    Sketcher.Constraint("Vertical", 6),
    Sketcher.Constraint("Horizontal", 7),
    Sketcher.Constraint("Symmetric", 0, 2, 2, 2, -1, 1),
    Sketcher.Constraint("Symmetric", 4, 2, 6, 2, -1, 1),
    Sketcher.Constraint("Equal", 2, 1),
    Sketcher.Constraint("DistanceX", 0, 2, 0, 1, 8.75),
    Sketcher.Constraint("DistanceX", 5, 2, 5, 1, 4.909),
    Sketcher.Constraint("DistanceY", 4, 2, 4, 1, 1.9092),
])
sketch15.setExpression("Constraints[19]", "Params.sketch15_width")
pad11 = body.newObject("PartDesign::Pad", "Pad010")
pad11.Profile = sketch15
pad11.setExpression("Length", "Params.pad11_length")

# Sketch on XY plane
sketch16 = body.newObject("Sketcher::SketchObject", "Sketch015")
sketch16.AttachmentSupport = (doc.getObject("XY_Plane"), [""])
sketch16.MapMode = "FlatFace"
sketch16.AttachmentOffset = App.Placement(V(0, 0, -12.7), App.Rotation())
add_polygon(sketch16, [(-4.375, -4.375), (-4.375, 4.375), (4.375, 4.375), (4.375, -4.375)])  # lines 0-3
add_polygon(sketch16, [(2.4545, -0.9546), (2.4545, 0.9546), (-2.4545, 0.9546), (-2.4545, -0.9546)])  # lines 4-7
sketch16.addConstraint([
    Sketcher.Constraint("Vertical", 0),
    Sketcher.Constraint("Horizontal", 1),
    Sketcher.Constraint("Vertical", 2),
    Sketcher.Constraint("Horizontal", 3),
    Sketcher.Constraint("Vertical", 4),
    Sketcher.Constraint("Horizontal", 5),
    Sketcher.Constraint("Vertical", 6),
    Sketcher.Constraint("Horizontal", 7),
    Sketcher.Constraint("Symmetric", 0, 2, 2, 2, -1, 1),
    Sketcher.Constraint("Symmetric", 4, 2, 6, 2, -1, 1),
    Sketcher.Constraint("Equal", 3, 0),
    Sketcher.Constraint("DistanceX", 1, 1, 1, 2, 8.75),
    Sketcher.Constraint("DistanceX", 5, 2, 5, 1, 4.909),
    Sketcher.Constraint("DistanceY", 4, 1, 4, 2, 1.9092),
])
sketch16.setExpression("Constraints[19]", "Params.sketch16_width")
pad12 = body.newObject("PartDesign::Pad", "Pad011")
pad12.Profile = sketch16
pad12.setExpression("Length", "Params.pad12_length")
pad12.Reversed = True

# Sketch on XY plane
sketch17 = body.newObject("Sketcher::SketchObject", "Sketch016")
sketch17.AttachmentSupport = (doc.getObject("XY_Plane"), [""])
sketch17.MapMode = "FlatFace"
sketch17.AttachmentOffset = App.Placement(V(0, 0, 0.3), App.Rotation())
sketch17.addGeometry(Part.Circle(V(0, 0, 0), V(0, 0, 1), 2.6), False)
sketch17.addConstraint([
    Sketcher.Constraint("Coincident", 0, 3, -1, 1),
    Sketcher.Constraint("Diameter", 0, 5.2),
])
sketch17.setExpression("Constraints[1]", "Params.sketch17_diameter")
pocket5 = body.newObject("PartDesign::Pocket", "Pocket004")
pocket5.Profile = sketch17
pocket5.setExpression("Length", "Params.pocket5_length")

doc.recompute()
